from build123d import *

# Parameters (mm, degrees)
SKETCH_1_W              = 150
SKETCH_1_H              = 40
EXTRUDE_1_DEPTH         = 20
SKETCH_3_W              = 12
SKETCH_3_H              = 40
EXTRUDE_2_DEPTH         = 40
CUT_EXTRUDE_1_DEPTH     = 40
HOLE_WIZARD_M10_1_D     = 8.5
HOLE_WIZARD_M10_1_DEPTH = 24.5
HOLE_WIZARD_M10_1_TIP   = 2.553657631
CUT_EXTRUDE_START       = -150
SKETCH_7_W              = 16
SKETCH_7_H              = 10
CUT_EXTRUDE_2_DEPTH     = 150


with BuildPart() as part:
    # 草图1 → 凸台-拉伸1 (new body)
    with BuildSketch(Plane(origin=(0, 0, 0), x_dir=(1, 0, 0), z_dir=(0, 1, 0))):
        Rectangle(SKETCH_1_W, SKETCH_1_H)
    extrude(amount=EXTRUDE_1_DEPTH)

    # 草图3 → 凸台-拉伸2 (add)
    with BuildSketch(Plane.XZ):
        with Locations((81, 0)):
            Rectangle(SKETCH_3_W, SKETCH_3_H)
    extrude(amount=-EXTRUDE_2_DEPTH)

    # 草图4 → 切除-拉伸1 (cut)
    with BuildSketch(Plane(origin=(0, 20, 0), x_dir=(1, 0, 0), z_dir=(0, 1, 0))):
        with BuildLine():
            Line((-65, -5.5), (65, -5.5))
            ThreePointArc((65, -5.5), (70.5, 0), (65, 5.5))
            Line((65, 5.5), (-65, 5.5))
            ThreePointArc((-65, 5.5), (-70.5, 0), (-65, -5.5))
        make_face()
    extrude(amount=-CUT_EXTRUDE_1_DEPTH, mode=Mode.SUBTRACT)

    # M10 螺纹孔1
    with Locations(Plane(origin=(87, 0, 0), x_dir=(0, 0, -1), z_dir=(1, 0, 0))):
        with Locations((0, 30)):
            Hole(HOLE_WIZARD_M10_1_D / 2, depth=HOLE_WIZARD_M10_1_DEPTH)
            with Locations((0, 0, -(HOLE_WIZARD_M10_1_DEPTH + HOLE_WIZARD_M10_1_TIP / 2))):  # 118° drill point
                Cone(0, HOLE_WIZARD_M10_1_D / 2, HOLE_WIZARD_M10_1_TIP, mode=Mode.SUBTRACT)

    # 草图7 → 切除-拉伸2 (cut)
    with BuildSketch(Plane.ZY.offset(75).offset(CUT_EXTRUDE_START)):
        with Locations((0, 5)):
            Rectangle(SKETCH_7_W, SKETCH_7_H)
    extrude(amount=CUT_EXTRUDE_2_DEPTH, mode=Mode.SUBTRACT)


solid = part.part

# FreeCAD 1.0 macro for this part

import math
import FreeCAD as App
import Part
import Sketcher
Q = App.Units.Quantity

doc = App.newDocument("Part")
body = doc.addObject("PartDesign::Body", "Body")

sketch1 = body.newObject("Sketcher::SketchObject", "Sketch")
sketch1.AttachmentSupport = (doc.getObject("XZ_Plane"), [""])
sketch1.MapMode = "FlatFace"
sketch1.addGeometry(Part.LineSegment(App.Vector(-75, -20, 0), App.Vector(-75, 20, 0)), False)
sketch1.addGeometry(Part.LineSegment(App.Vector(-75, 20, 0), App.Vector(75, 20, 0)), False)
sketch1.addGeometry(Part.LineSegment(App.Vector(75, 20, 0), App.Vector(75, -20, 0)), False)
sketch1.addGeometry(Part.LineSegment(App.Vector(75, -20, 0), App.Vector(-75, -20, 0)), False)
sketch1.addConstraint(Sketcher.Constraint("Coincident", 0, 2, 1, 1))
sketch1.addConstraint(Sketcher.Constraint("Coincident", 1, 2, 2, 1))
sketch1.addConstraint(Sketcher.Constraint("Coincident", 2, 2, 3, 1))
sketch1.addConstraint(Sketcher.Constraint("Coincident", 3, 2, 0, 1))
sketch1.addConstraint(Sketcher.Constraint("Vertical", 0))
sketch1.addConstraint(Sketcher.Constraint("Horizontal", 1))
sketch1.addConstraint(Sketcher.Constraint("Vertical", 2))
sketch1.addConstraint(Sketcher.Constraint("Horizontal", 3))
sketch1.addConstraint(Sketcher.Constraint("Symmetric", 0, 2, 2, 2, -1, 1))
sketch1.addConstraint(Sketcher.Constraint("DistanceX", 1, 1, 1, 2, Q("150 mm")))
sketch1.addConstraint(Sketcher.Constraint("DistanceY", 0, 1, 0, 2, Q("40 mm")))
pad1 = body.newObject("PartDesign::Pad", "Pad")
pad1.Profile = sketch1
pad1.Length = 20
pad1.Reversed = True

sketch2 = body.newObject("Sketcher::SketchObject", "Sketch001")
sketch2.AttachmentSupport = (doc.getObject("XZ_Plane"), [""])
sketch2.MapMode = "FlatFace"
sketch2.addGeometry(Part.LineSegment(App.Vector(75, 20, 0), App.Vector(75, -20, 0)), False)
sketch2.addGeometry(Part.LineSegment(App.Vector(75, -20, 0), App.Vector(87, -20, 0)), False)
sketch2.addGeometry(Part.LineSegment(App.Vector(87, -20, 0), App.Vector(87, 20, 0)), False)
sketch2.addGeometry(Part.LineSegment(App.Vector(87, 20, 0), App.Vector(75, 20, 0)), False)
sketch2.addConstraint(Sketcher.Constraint("Coincident", 0, 2, 1, 1))
sketch2.addConstraint(Sketcher.Constraint("Coincident", 1, 2, 2, 1))
sketch2.addConstraint(Sketcher.Constraint("Coincident", 2, 2, 3, 1))
sketch2.addConstraint(Sketcher.Constraint("Coincident", 3, 2, 0, 1))
sketch2.addConstraint(Sketcher.Constraint("Vertical", 0))
sketch2.addConstraint(Sketcher.Constraint("Horizontal", 1))
sketch2.addConstraint(Sketcher.Constraint("Vertical", 2))
sketch2.addConstraint(Sketcher.Constraint("Horizontal", 3))
sketch2.addConstraint(Sketcher.Constraint("DistanceX", 1, 1, 1, 2, Q("12 mm")))
sketch2.addConstraint(Sketcher.Constraint("DistanceY", 0, 2, 0, 1, Q("40 mm")))
sketch2.addConstraint(Sketcher.Constraint("DistanceX", -1, 1, 0, 2, Q("75 mm")))
sketch2.addConstraint(Sketcher.Constraint("DistanceY", 0, 2, -1, 1, Q("20 mm")))
pad2 = body.newObject("PartDesign::Pad", "Pad001")
pad2.Profile = sketch2
pad2.Length = 40
pad2.Reversed = True

sketch3 = body.newObject("Sketcher::SketchObject", "Sketch002")
sketch3.AttachmentSupport = (doc.getObject("XZ_Plane"), [""])
sketch3.MapMode = "FlatFace"
sketch3.AttachmentOffset = App.Placement(App.Vector(0, 0, -20), App.Rotation())
sketch3.addGeometry(Part.LineSegment(App.Vector(-65, 5.5, 0), App.Vector(65, 5.5, 0)), False)
sketch3.addGeometry(Part.ArcOfCircle(Part.Circle(App.Vector(65, 0, 0), App.Vector(0, 0, 1), 5.5), math.radians(-90), math.radians(90)), False)
sketch3.addGeometry(Part.LineSegment(App.Vector(65, -5.5, 0), App.Vector(-65, -5.5, 0)), False)
sketch3.addGeometry(Part.ArcOfCircle(Part.Circle(App.Vector(-65, 0, 0), App.Vector(0, 0, 1), 5.5), math.radians(90), math.radians(270)), False)
sketch3.addConstraint(Sketcher.Constraint("Tangent", 0, 2, 1, 2))
sketch3.addConstraint(Sketcher.Constraint("Tangent", 1, 1, 2, 1))
sketch3.addConstraint(Sketcher.Constraint("Tangent", 2, 2, 3, 2))
sketch3.addConstraint(Sketcher.Constraint("Tangent", 3, 1, 0, 1))
sketch3.addConstraint(Sketcher.Constraint("Horizontal", 0))
sketch3.addConstraint(Sketcher.Constraint("Horizontal", 2))
sketch3.addConstraint(Sketcher.Constraint("Symmetric", 1, 3, 3, 3, -1, 1))
sketch3.addConstraint(Sketcher.Constraint("Radius", 1, Q("5.5 mm")))
sketch3.addConstraint(Sketcher.Constraint("DistanceX", 0, 1, 0, 2, Q("130 mm")))
pocket1 = body.newObject("PartDesign::Pocket", "Pocket")
pocket1.Profile = sketch3
pocket1.Length = 40
pocket1.Reversed = True

sketch4 = body.newObject("Sketcher::SketchObject", "Sketch003")
sketch4.AttachmentSupport = (doc.getObject("YZ_Plane"), [""])
sketch4.MapMode = "FlatFace"
sketch4.AttachmentOffset = App.Placement(App.Vector(0, 0, 87), App.Rotation())
sketch4.addGeometry(Part.Circle(App.Vector(30, 0, 0), App.Vector(0, 0, 1), 4.25), False)
sketch4.addConstraint(Sketcher.Constraint("PointOnObject", 0, 3, -1))
sketch4.addConstraint(Sketcher.Constraint("Diameter", 0, Q("8.5 mm")))
sketch4.addConstraint(Sketcher.Constraint("DistanceX", -1, 1, 0, 3, Q("30 mm")))
doc.recompute()
hole = body.newObject("PartDesign::Hole", "Hole")
hole.Profile = sketch4
hole.ThreadType = "None"
hole.Diameter = 8.5
hole.DepthType = "Dimension"
hole.Depth = 24.5
hole.DrillPoint = "Angled"
hole.DrillPointAngle = 118

sketch5 = body.newObject("Sketcher::SketchObject", "Sketch004")
sketch5.AttachmentSupport = (doc.getObject("YZ_Plane"), [""])
sketch5.MapMode = "FlatFace"
sketch5.AttachmentOffset = App.Placement(App.Vector(0, 0, 75), App.Rotation())
sketch5.addGeometry(Part.LineSegment(App.Vector(10, -8, 0), App.Vector(0, -8, 0)), False)
sketch5.addGeometry(Part.LineSegment(App.Vector(0, -8, 0), App.Vector(0, 8, 0)), False)
sketch5.addGeometry(Part.LineSegment(App.Vector(0, 8, 0), App.Vector(10, 8, 0)), False)
sketch5.addGeometry(Part.LineSegment(App.Vector(10, 8, 0), App.Vector(10, -8, 0)), False)
sketch5.addConstraint(Sketcher.Constraint("Coincident", 0, 2, 1, 1))
sketch5.addConstraint(Sketcher.Constraint("Coincident", 1, 2, 2, 1))
sketch5.addConstraint(Sketcher.Constraint("Coincident", 2, 2, 3, 1))
sketch5.addConstraint(Sketcher.Constraint("Coincident", 3, 2, 0, 1))
sketch5.addConstraint(Sketcher.Constraint("Horizontal", 0))
sketch5.addConstraint(Sketcher.Constraint("Vertical", 1))
sketch5.addConstraint(Sketcher.Constraint("Horizontal", 2))
sketch5.addConstraint(Sketcher.Constraint("Vertical", 3))
sketch5.addConstraint(Sketcher.Constraint("Symmetric", 0, 2, 1, 2, -1, 1))
sketch5.addConstraint(Sketcher.Constraint("DistanceX", 0, 2, 0, 1, Q("10 mm")))
sketch5.addConstraint(Sketcher.Constraint("DistanceY", 1, 1, 1, 2, Q("16 mm")))
pocket2 = body.newObject("PartDesign::Pocket", "Pocket001")
pocket2.Profile = sketch5
pocket2.Length = 150

doc.recompute()
